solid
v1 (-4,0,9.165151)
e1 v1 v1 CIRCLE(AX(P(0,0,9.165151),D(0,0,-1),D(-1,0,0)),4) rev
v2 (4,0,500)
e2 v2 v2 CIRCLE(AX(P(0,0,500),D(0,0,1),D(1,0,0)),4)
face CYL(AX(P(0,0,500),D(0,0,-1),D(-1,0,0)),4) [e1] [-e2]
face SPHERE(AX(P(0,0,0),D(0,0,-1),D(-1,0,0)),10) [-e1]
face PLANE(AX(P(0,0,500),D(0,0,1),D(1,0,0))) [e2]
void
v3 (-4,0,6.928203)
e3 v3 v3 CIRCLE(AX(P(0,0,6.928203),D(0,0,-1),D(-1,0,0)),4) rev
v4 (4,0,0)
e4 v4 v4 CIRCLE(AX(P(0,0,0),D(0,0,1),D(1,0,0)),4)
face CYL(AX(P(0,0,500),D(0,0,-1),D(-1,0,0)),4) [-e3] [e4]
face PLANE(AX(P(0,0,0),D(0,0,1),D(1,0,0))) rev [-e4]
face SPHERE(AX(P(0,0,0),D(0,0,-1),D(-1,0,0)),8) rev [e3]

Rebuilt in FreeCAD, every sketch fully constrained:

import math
import FreeCAD as App
import Part
import Sketcher
from FreeCAD import Vector
Q = App.Units.Quantity

doc = App.newDocument("Part")
body = doc.addObject("PartDesign::Body", "Body")

# Sketch on XY plane
sketch1 = body.newObject("Sketcher::SketchObject", "Sketch")
sketch1.AttachmentSupport = (doc.getObject("XY_Plane"), [""])
sketch1.MapMode = "FlatFace"
sketch1.addGeometry(Part.ArcOfCircle(Part.Circle(Vector(0, 0, 0), Vector(0, 0, 1), 10), math.radians(0), math.radians(180)), False)
sketch1.addGeometry(Part.LineSegment(Vector(-10, 0, 0), Vector(-8, 0, 0)), False)
sketch1.addGeometry(Part.ArcOfCircle(Part.Circle(Vector(0, 0, 0), Vector(0, 0, 1), 8), math.radians(0), math.radians(180)), False)
sketch1.addGeometry(Part.LineSegment(Vector(8, 0, 0), Vector(10, 0, 0)), False)
sketch1.addConstraint(Sketcher.Constraint("Coincident", 0, 2, 1, 1))
sketch1.addConstraint(Sketcher.Constraint("Coincident", 1, 2, 2, 2))
sketch1.addConstraint(Sketcher.Constraint("Coincident", 2, 1, 3, 1))
sketch1.addConstraint(Sketcher.Constraint("Coincident", 3, 2, 0, 1))
sketch1.addConstraint(Sketcher.Constraint("Horizontal", 1))
sketch1.addConstraint(Sketcher.Constraint("Horizontal", 3))
sketch1.addConstraint(Sketcher.Constraint("Coincident", 0, 3, -1, 1))
sketch1.addConstraint(Sketcher.Constraint("Coincident", 2, 3, -1, 1))
sketch1.addConstraint(Sketcher.Constraint("PointOnObject", 0, 2, -1))
sketch1.addConstraint(Sketcher.Constraint("PointOnObject", 2, 1, -1))
sketch1.addConstraint(Sketcher.Constraint("Radius", 0, Q("10 mm")))
sketch1.addConstraint(Sketcher.Constraint("Radius", 2, Q("8 mm")))
revolution = body.newObject("PartDesign::Revolution", "Revolution")
revolution.Profile = sketch1
revolution.ReferenceAxis = (sketch1, ["H_Axis"])
revolution.Angle = 360

# Sketch on XY plane
sketch2 = body.newObject("Sketcher::SketchObject", "Sketch001")
sketch2.AttachmentSupport = (doc.getObject("XY_Plane"), [""])
sketch2.MapMode = "FlatFace"
sketch2.addGeometry(Part.Circle(Vector(0, 0, 0), Vector(0, 0, 1), 4), False)
sketch2.addConstraint(Sketcher.Constraint("Coincident", 0, 3, -1, 1))
sketch2.addConstraint(Sketcher.Constraint("Diameter", 0, Q("8 mm")))
pad1 = body.newObject("PartDesign::Pad", "Pad")
pad1.Profile = sketch2
pad1.Length = 500

doc.recompute()
